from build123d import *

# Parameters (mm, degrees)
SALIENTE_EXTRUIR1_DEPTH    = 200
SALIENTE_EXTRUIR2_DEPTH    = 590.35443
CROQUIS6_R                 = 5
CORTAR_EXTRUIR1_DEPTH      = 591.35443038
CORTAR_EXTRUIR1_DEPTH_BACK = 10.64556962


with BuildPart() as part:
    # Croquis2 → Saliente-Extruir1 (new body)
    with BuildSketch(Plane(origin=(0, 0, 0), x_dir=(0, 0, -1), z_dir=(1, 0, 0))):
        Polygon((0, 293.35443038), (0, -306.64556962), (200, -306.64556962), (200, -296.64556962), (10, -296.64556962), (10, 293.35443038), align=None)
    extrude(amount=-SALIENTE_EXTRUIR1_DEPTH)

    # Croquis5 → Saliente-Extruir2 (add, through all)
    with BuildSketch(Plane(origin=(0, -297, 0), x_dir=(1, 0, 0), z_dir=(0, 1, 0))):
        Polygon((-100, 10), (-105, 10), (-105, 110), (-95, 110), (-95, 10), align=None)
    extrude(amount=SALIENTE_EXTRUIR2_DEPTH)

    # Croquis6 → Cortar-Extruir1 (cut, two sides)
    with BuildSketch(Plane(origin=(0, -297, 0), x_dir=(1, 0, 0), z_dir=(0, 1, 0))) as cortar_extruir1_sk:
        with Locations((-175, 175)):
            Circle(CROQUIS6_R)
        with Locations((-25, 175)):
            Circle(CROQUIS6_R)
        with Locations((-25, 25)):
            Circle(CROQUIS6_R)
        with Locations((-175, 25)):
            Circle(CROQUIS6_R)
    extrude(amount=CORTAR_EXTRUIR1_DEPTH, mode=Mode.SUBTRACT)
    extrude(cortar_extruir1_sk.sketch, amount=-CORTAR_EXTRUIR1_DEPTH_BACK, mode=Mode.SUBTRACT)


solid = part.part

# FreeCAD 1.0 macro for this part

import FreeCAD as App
import Part
import Sketcher


def add_polygon(sketch, points):
    """Adds a closed chain of lines whose ends are joined by coincident constraints."""
    first, n = sketch.GeometryCount, len(points)
    for a, b in zip(points, points[1:] + points[:1]):
        sketch.addGeometry(Part.LineSegment(App.Vector(*a, 0), App.Vector(*b, 0)), False)
    for i in range(n):
        sketch.addConstraint(Sketcher.Constraint("Coincident", first + i, 2, first + (i + 1) % n, 1))

doc = App.newDocument("Part")
params = doc.addObject("Spreadsheet::Sheet", "Params")
for row, (alias, value) in enumerate([
    ("sketch1_width", "600 mm"),
    ("sketch1_width2", "10 mm"),
    ("sketch1_height", "200 mm"),
    ("pad1_length", "200 mm"),
    ("sketch2_width", "10 mm"),
    ("sketch2_height", "100 mm"),
    ("pad2_length", "590.35443 mm"),
    ("sketch3_diameter", "10 mm"),
], start=1):
    params.set(f"A{row}", alias)
    params.set(f"B{row}", "=" + value)
    params.setAlias(f"B{row}", alias)

body = doc.addObject("PartDesign::Body", "Body")

# Sketch on YZ plane
sketch1 = body.newObject("Sketcher::SketchObject", "Sketch")
sketch1.AttachmentSupport = (doc.getObject("YZ_Plane"), [""])
sketch1.MapMode = "FlatFace"
add_polygon(sketch1, [(293, 0), (-307, 0), (-307, -200), (-297, -200), (-297, -10), (293, -10)])  # lines 0-5
sketch1.addConstraint([
    Sketcher.Constraint("Horizontal", 0),
    Sketcher.Constraint("Vertical", 1),
    Sketcher.Constraint("Horizontal", 2),
    Sketcher.Constraint("Vertical", 3),
    Sketcher.Constraint("Horizontal", 4),
    Sketcher.Constraint("Vertical", 5),
    Sketcher.Constraint("PointOnObject", 0, 2, -1),
    Sketcher.Constraint("Equal", 2, 5),
    Sketcher.Constraint("DistanceX", 0, 2, 0, 1, 600.0),
    Sketcher.Constraint("DistanceX", 2, 1, 2, 2, 10.0),
    Sketcher.Constraint("DistanceY", 1, 2, 1, 1, 200.0),
    Sketcher.Constraint("DistanceX", 0, 2, -1, 1, 306.64557),
])
sketch1.setExpression("Constraints[14]", "Params.sketch1_width")
sketch1.setExpression("Constraints[15]", "Params.sketch1_width2")
sketch1.setExpression("Constraints[16]", "Params.sketch1_height")
pad1 = body.newObject("PartDesign::Pad", "Pad")
pad1.Profile = sketch1
pad1.setExpression("Length", "Params.pad1_length")
pad1.Reversed = True

# Sketch on XZ plane
sketch2 = body.newObject("Sketcher::SketchObject", "Sketch001")
sketch2.AttachmentSupport = (doc.getObject("XZ_Plane"), [""])
sketch2.MapMode = "FlatFace"
sketch2.AttachmentOffset = App.Placement(App.Vector(0, 0, 297), App.Rotation())
add_polygon(sketch2, [(-105, -10), (-95, -10), (-95, -110), (-105, -110)])  # lines 0-3
sketch2.addConstraint([
    Sketcher.Constraint("Horizontal", 0),
    Sketcher.Constraint("Vertical", 1),
    Sketcher.Constraint("Horizontal", 2),
    Sketcher.Constraint("Vertical", 3),
    Sketcher.Constraint("DistanceX", 0, 1, 0, 2, 10.0),
    Sketcher.Constraint("DistanceY", 1, 2, 1, 1, 100.0),
    Sketcher.Constraint("DistanceX", 0, 2, -1, 1, 95.0),
    Sketcher.Constraint("DistanceY", 0, 2, -1, 1, 10.0),
])
sketch2.setExpression("Constraints[8]", "Params.sketch2_width")
sketch2.setExpression("Constraints[9]", "Params.sketch2_height")
pad2 = body.newObject("PartDesign::Pad", "Pad001")
pad2.Profile = sketch2
pad2.setExpression("Length", "Params.pad2_length")
pad2.Reversed = True

# Sketch on XZ plane
sketch3 = body.newObject("Sketcher::SketchObject", "Sketch002")
sketch3.AttachmentSupport = (doc.getObject("XZ_Plane"), [""])
sketch3.MapMode = "FlatFace"
sketch3.AttachmentOffset = App.Placement(App.Vector(0, 0, 297), App.Rotation())
sketch3.addGeometry([
    Part.Circle(App.Vector(-175, -175, 0), App.Vector(0, 0, 1), 5),
    Part.Circle(App.Vector(-25, -175, 0), App.Vector(0, 0, 1), 5),
    Part.Circle(App.Vector(-25, -25, 0), App.Vector(0, 0, 1), 5),
    Part.Circle(App.Vector(-175, -25, 0), App.Vector(0, 0, 1), 5),
], False)
sketch3.addConstraint([
    Sketcher.Constraint("Equal", 0, 1),
    Sketcher.Constraint("Equal", 1, 2),
    Sketcher.Constraint("Equal", 2, 3),
    Sketcher.Constraint("Horizontal", 0, 3, 1, 3),
    Sketcher.Constraint("Horizontal", 2, 3, 3, 3),
    Sketcher.Constraint("Vertical", 1, 3, 2, 3),
    Sketcher.Constraint("Vertical", 0, 3, 3, 3),
    Sketcher.Constraint("Diameter", 0, 10.0),
    Sketcher.Constraint("DistanceX", 0, 3, -1, 1, 175.0),
    Sketcher.Constraint("DistanceY", 0, 3, -1, 1, 175.0),
    Sketcher.Constraint("DistanceX", 1, 3, -1, 1, 25.0),
    Sketcher.Constraint("DistanceY", 2, 3, -1, 1, 25.0),
])
sketch3.setExpression("Constraints[7]", "Params.sketch3_diameter")
pocket1 = body.newObject("PartDesign::Pocket", "Pocket")
pocket1.Profile = sketch3
pocket1.Type = "ThroughAll"
pocket1.Midplane = True

doc.recompute()
